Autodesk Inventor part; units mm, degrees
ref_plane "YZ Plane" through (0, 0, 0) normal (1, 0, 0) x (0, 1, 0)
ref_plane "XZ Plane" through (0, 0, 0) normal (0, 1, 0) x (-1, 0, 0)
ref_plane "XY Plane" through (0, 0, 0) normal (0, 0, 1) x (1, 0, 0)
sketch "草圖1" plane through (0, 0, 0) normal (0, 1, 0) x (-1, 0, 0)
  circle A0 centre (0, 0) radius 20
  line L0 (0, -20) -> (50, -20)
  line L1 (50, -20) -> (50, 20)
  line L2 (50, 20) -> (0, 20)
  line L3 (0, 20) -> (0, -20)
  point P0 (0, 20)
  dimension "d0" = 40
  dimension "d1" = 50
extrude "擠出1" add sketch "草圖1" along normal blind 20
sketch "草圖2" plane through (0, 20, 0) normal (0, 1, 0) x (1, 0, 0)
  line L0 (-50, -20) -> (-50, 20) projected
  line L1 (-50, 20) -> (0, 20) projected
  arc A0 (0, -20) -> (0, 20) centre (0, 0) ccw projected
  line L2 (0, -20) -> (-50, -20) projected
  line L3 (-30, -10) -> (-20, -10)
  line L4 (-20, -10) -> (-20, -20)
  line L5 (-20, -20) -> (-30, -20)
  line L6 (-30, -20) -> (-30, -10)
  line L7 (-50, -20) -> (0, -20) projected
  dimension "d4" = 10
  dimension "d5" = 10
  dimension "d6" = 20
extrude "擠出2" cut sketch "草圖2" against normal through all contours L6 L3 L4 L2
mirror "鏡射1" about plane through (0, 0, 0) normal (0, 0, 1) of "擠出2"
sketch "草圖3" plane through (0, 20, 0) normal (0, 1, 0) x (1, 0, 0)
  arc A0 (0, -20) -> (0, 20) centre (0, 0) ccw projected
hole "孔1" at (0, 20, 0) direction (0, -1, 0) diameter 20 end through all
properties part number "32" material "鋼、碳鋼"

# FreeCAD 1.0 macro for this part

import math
import FreeCAD as App
import Part
import Sketcher
from FreeCAD import Vector
Q = App.Units.Quantity


def add_polygon(sketch, points):
    """Adds a closed chain of lines whose ends are joined by coincident constraints."""
    first, n = sketch.GeometryCount, len(points)
    for a, b in zip(points, points[1:] + points[:1]):
        sketch.addGeometry(Part.LineSegment(App.Vector(*a, 0), App.Vector(*b, 0)), False)
    for i in range(n):
        sketch.addConstraint(Sketcher.Constraint("Coincident", first + i, 2, first + (i + 1) % n, 1))

doc = App.newDocument("Part")
body = doc.addObject("PartDesign::Body", "Body")

sketch1 = body.newObject("Sketcher::SketchObject", "Sketch")
sketch1.AttachmentSupport = (doc.getObject("XZ_Plane"), [""])
sketch1.MapMode = "FlatFace"
sketch1.addGeometry([
    Part.LineSegment(Vector(0, -20, 0), Vector(-50, -20, 0)),
    Part.LineSegment(Vector(-50, -20, 0), Vector(-50, 20, 0)),
    Part.LineSegment(Vector(-50, 20, 0), Vector(0, 20, 0)),
    Part.ArcOfCircle(Part.Circle(Vector(0, 0, 0), Vector(0, 0, 1), 20), math.radians(-90), math.radians(90)),
], False)
sketch1.addConstraint([
    Sketcher.Constraint("Coincident", 0, 2, 1, 1),
    Sketcher.Constraint("Coincident", 1, 2, 2, 1),
    Sketcher.Constraint("Tangent", 2, 2, 3, 2),
    Sketcher.Constraint("Tangent", 3, 1, 0, 1),
    Sketcher.Constraint("Horizontal", 0),
    Sketcher.Constraint("Vertical", 1),
    Sketcher.Constraint("Horizontal", 2),
    Sketcher.Constraint("Coincident", 3, 3, -1, 1),
    Sketcher.Constraint("Radius", 3, Q("20 mm")),
    Sketcher.Constraint("DistanceX", 0, 2, 0, 1, Q("50 mm")),
])
pad1 = body.newObject("PartDesign::Pad", "Pad")
pad1.Profile = sketch1
pad1.Length = 20
pad1.Reversed = True

sketch2 = body.newObject("Sketcher::SketchObject", "Sketch001")
sketch2.AttachmentSupport = (doc.getObject("XZ_Plane"), [""])
sketch2.MapMode = "FlatFace"
sketch2.AttachmentOffset = App.Placement(Vector(0, 0, -20), App.Rotation())
add_polygon(sketch2, [(-30, 10), (-30, 20), (-20, 20), (-20, 10)])
sketch2.addConstraint([
    Sketcher.Constraint("Vertical", 0),
    Sketcher.Constraint("Horizontal", 1),
    Sketcher.Constraint("Vertical", 2),
    Sketcher.Constraint("Horizontal", 3),
    Sketcher.Constraint("Equal", 3, 0),
    Sketcher.Constraint("DistanceX", 1, 1, 1, 2, Q("10 mm")),
    Sketcher.Constraint("DistanceY", -1, 1, 0, 2, Q("20 mm")),
    Sketcher.Constraint("DistanceX", 1, 2, -1, 1, Q("20 mm")),
])
pocket1 = body.newObject("PartDesign::Pocket", "Pocket")
pocket1.Profile = sketch2
pocket1.Type = "ThroughAll"
pocket1.Reversed = True
doc.recompute()

mirrored = body.newObject("PartDesign::Mirrored", "Mirrored")
mirrored.Originals = [pocket1]
mirrored.MirrorPlane = (doc.getObject("XY_Plane"), [""])
body.Tip = mirrored

sketch3 = body.newObject("Sketcher::SketchObject", "Sketch002")
sketch3.AttachmentSupport = (doc.getObject("XZ_Plane"), [""])
sketch3.MapMode = "FlatFace"
sketch3.AttachmentOffset = App.Placement(Vector(0, 0, -20), App.Rotation())
sketch3.addGeometry(Part.Circle(Vector(0, 0, 0), Vector(0, 0, 1), 10), False)
sketch3.addConstraint([
    Sketcher.Constraint("Coincident", 0, 3, -1, 1),
    Sketcher.Constraint("Diameter", 0, Q("20 mm")),
])
doc.recompute()
hole = body.newObject("PartDesign::Hole", "Hole")
hole.Profile = sketch3
hole.ThreadType = "None"
hole.Diameter = 20
hole.DepthType = "ThroughAll"
hole.Reversed = True

doc.recompute()
